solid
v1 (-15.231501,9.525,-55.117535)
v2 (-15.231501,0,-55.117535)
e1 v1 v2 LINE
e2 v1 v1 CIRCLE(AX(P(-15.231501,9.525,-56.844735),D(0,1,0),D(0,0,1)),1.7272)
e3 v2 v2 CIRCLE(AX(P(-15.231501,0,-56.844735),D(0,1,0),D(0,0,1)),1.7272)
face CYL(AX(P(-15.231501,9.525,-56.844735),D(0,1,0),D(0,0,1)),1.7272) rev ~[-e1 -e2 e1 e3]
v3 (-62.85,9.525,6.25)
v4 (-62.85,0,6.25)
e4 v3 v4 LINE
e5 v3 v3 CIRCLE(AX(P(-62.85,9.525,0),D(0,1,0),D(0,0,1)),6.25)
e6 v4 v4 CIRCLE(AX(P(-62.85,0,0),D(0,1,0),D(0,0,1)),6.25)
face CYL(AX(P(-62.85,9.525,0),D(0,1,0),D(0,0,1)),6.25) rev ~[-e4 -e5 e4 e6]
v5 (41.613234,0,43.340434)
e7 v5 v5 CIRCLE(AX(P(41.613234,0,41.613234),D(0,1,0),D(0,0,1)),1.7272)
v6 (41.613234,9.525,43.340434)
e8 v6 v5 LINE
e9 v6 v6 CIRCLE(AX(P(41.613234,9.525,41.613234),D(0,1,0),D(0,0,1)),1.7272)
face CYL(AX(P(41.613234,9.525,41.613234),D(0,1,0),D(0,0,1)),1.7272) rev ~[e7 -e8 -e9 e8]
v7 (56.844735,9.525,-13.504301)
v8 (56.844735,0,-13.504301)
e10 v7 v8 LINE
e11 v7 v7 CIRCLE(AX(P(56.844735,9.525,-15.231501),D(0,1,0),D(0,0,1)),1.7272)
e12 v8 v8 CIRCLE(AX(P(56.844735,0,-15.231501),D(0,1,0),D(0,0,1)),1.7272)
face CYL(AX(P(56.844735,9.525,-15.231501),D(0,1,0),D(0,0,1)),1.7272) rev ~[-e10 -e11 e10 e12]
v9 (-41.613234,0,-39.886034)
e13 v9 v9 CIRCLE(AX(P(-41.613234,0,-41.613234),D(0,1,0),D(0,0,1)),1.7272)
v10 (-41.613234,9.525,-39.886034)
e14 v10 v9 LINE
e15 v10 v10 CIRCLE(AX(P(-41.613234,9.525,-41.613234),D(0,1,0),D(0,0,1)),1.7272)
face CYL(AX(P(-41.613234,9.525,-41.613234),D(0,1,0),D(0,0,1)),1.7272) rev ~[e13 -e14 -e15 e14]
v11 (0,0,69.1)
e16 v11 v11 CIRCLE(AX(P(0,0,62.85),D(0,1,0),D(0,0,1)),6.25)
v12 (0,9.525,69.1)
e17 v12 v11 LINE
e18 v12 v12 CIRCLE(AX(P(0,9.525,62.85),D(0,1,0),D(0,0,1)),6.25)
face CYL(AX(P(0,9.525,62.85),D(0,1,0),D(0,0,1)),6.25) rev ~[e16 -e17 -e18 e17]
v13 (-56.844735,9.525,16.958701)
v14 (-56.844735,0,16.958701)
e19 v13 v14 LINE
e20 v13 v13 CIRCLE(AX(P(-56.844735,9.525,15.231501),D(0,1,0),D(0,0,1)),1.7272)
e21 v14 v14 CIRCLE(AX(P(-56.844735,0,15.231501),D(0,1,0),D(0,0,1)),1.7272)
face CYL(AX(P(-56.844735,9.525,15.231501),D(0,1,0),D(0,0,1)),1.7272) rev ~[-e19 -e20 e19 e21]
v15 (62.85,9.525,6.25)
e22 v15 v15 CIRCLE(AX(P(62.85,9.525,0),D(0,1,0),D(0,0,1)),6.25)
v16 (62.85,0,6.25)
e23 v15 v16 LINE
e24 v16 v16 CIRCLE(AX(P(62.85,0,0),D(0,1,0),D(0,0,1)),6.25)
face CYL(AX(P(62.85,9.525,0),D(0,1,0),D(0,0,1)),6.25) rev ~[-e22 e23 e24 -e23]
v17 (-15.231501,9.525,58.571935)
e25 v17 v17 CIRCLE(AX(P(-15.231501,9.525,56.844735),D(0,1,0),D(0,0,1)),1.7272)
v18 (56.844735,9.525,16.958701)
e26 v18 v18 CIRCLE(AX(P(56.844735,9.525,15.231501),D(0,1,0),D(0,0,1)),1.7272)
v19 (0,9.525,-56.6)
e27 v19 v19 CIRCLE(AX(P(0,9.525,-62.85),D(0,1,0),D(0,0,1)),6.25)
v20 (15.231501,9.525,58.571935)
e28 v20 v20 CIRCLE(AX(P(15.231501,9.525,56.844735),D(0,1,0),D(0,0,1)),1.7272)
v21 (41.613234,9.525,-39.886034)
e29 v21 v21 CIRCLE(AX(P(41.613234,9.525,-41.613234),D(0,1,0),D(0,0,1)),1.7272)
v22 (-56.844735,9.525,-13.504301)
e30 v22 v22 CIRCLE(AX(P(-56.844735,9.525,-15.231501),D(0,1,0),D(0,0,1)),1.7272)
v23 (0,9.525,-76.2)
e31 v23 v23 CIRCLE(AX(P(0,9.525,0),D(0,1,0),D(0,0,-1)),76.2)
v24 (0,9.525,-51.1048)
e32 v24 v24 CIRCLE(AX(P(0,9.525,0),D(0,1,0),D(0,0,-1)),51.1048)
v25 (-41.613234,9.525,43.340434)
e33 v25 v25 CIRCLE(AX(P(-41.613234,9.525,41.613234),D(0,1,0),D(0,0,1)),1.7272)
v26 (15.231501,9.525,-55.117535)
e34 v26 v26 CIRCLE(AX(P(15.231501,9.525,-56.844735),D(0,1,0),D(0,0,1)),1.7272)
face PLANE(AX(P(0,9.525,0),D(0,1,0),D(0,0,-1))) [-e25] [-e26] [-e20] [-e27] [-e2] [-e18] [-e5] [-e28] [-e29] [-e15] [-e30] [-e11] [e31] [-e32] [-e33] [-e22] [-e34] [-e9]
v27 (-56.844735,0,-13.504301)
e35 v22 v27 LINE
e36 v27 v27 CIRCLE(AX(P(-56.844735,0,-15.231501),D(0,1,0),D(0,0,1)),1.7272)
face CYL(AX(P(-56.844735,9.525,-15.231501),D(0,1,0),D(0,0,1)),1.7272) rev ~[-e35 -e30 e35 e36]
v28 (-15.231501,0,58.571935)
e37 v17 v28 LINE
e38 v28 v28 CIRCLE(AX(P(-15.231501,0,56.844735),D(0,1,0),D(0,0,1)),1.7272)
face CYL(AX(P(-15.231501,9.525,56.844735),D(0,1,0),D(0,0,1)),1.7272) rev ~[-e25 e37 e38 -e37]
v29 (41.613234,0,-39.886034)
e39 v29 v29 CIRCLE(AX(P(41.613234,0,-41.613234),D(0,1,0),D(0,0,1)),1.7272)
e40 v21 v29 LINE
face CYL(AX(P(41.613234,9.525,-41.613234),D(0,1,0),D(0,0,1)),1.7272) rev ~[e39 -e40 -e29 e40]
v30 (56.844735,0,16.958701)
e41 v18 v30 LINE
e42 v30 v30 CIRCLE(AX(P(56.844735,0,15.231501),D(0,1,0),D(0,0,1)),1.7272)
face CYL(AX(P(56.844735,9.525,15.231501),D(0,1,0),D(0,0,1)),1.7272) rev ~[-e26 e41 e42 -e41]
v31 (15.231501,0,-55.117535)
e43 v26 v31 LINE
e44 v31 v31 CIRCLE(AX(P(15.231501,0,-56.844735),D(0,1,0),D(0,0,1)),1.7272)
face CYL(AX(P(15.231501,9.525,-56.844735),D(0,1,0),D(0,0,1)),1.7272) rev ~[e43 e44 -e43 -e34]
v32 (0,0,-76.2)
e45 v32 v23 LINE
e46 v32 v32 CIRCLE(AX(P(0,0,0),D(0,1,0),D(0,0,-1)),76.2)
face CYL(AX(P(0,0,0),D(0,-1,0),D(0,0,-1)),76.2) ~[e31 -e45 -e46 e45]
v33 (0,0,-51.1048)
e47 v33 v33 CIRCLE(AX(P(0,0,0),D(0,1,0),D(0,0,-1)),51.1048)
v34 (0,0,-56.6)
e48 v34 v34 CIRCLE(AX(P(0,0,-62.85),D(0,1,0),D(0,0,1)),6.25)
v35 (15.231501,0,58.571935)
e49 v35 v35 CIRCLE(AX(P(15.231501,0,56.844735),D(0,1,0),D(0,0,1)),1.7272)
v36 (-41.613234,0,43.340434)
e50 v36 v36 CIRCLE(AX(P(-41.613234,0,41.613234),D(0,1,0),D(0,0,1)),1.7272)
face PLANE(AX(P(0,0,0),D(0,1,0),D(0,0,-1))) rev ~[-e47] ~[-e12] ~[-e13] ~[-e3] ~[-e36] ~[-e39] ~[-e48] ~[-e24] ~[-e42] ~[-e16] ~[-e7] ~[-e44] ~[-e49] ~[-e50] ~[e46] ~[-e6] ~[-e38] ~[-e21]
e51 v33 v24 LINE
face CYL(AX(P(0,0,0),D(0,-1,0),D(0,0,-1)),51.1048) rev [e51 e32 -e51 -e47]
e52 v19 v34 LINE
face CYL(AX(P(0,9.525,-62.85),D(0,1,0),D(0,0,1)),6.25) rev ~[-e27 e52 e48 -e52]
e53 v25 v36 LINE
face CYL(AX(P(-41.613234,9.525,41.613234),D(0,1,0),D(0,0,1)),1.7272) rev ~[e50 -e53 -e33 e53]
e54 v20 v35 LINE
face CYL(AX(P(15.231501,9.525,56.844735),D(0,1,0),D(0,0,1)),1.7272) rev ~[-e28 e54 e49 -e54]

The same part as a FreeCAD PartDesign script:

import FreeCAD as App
import Part
import Sketcher
Q = App.Units.Quantity

doc = App.newDocument("Part")
params = doc.addObject("Spreadsheet::Sheet", "Params")
for row, (alias, value) in enumerate([
    ("sketch1_diameter", "6 in"),
    ("sketch1_diameter2", "4.024 in"),
    ("pad1_length", "0.375 in"),
    ("sketch2_diameter", "0.136 in"),
], start=1):
    params.set(f"A{row}", alias)
    params.set(f"B{row}", "=" + value)
    params.setAlias(f"B{row}", alias)

body = doc.addObject("PartDesign::Body", "Body")

# Sketch on XZ plane
sketch1 = body.newObject("Sketcher::SketchObject", "Sketch")
sketch1.AttachmentSupport = (doc.getObject("XZ_Plane"), [""])
sketch1.MapMode = "FlatFace"
sketch1.addGeometry(Part.Circle(App.Vector(0, 0, 0), App.Vector(0, 0, 1), 76.2), False)
sketch1.addGeometry(Part.Circle(App.Vector(0, 0, 0), App.Vector(0, 0, 1), 51.1048), False)
sketch1.addConstraint(Sketcher.Constraint("Coincident", 0, 3, -1, 1))
sketch1.addConstraint(Sketcher.Constraint("Coincident", 1, 3, -1, 1))
sketch1.addConstraint(Sketcher.Constraint("Diameter", 0, Q("6 in")))
sketch1.addConstraint(Sketcher.Constraint("Diameter", 1, Q("4.024 in")))
sketch1.setExpression("Constraints[2]", "Params.sketch1_diameter")
sketch1.setExpression("Constraints[3]", "Params.sketch1_diameter2")
pad1 = body.newObject("PartDesign::Pad", "Pad")
pad1.Profile = sketch1
pad1.setExpression("Length", "Params.pad1_length")
pad1.Reversed = True

# Sketch on XZ plane
sketch2 = body.newObject("Sketcher::SketchObject", "Sketch001")
sketch2.AttachmentSupport = (doc.getObject("XZ_Plane"), [""])
sketch2.MapMode = "FlatFace"
sketch2.AttachmentOffset = App.Placement(App.Vector(0, 0, -0.375 * 25.4), App.Rotation())
sketch2.addGeometry(Part.Circle(App.Vector(-15.231501, -56.844735, 0), App.Vector(0, 0, 1), 1.7272), False)
sketch2.addGeometry(Part.Circle(App.Vector(15.231501, -56.844735, 0), App.Vector(0, 0, 1), 1.7272), False)
sketch2.addGeometry(Part.Circle(App.Vector(41.613234, -41.613234, 0), App.Vector(0, 0, 1), 1.7272), False)
sketch2.addGeometry(Part.Circle(App.Vector(56.844735, -15.231501, 0), App.Vector(0, 0, 1), 1.7272), False)
sketch2.addGeometry(Part.Circle(App.Vector(56.844735, 15.231501, 0), App.Vector(0, 0, 1), 1.7272), False)
sketch2.addGeometry(Part.Circle(App.Vector(41.613234, 41.613234, 0), App.Vector(0, 0, 1), 1.7272), False)
sketch2.addGeometry(Part.Circle(App.Vector(15.231501, 56.844735, 0), App.Vector(0, 0, 1), 1.7272), False)
sketch2.addGeometry(Part.Circle(App.Vector(-15.231501, 56.844735, 0), App.Vector(0, 0, 1), 1.7272), False)
sketch2.addGeometry(Part.Circle(App.Vector(-41.613234, 41.613234, 0), App.Vector(0, 0, 1), 1.7272), False)
sketch2.addGeometry(Part.Circle(App.Vector(-56.844735, 15.231501, 0), App.Vector(0, 0, 1), 1.7272), False)
sketch2.addGeometry(Part.Circle(App.Vector(-56.844735, -15.231501, 0), App.Vector(0, 0, 1), 1.7272), False)
sketch2.addGeometry(Part.Circle(App.Vector(-41.613234, -41.613234, 0), App.Vector(0, 0, 1), 1.7272), False)
sketch2.addConstraint(Sketcher.Constraint("Equal", 0, 1))
sketch2.addConstraint(Sketcher.Constraint("Equal", 1, 2))
sketch2.addConstraint(Sketcher.Constraint("Equal", 2, 3))
sketch2.addConstraint(Sketcher.Constraint("Equal", 3, 4))
sketch2.addConstraint(Sketcher.Constraint("Equal", 4, 5))
sketch2.addConstraint(Sketcher.Constraint("Equal", 5, 6))
sketch2.addConstraint(Sketcher.Constraint("Equal", 6, 7))
sketch2.addConstraint(Sketcher.Constraint("Equal", 7, 8))
sketch2.addConstraint(Sketcher.Constraint("Equal", 8, 9))
sketch2.addConstraint(Sketcher.Constraint("Equal", 9, 10))
sketch2.addConstraint(Sketcher.Constraint("Equal", 10, 11))
sketch2.addConstraint(Sketcher.Constraint("Symmetric", 0, 3, 6, 3, -1, 1))
sketch2.addConstraint(Sketcher.Constraint("Symmetric", 1, 3, 7, 3, -1, 1))
sketch2.addConstraint(Sketcher.Constraint("Symmetric", 2, 3, 8, 3, -1, 1))
sketch2.addConstraint(Sketcher.Constraint("Symmetric", 3, 3, 9, 3, -1, 1))
sketch2.addConstraint(Sketcher.Constraint("Symmetric", 4, 3, 10, 3, -1, 1))
sketch2.addConstraint(Sketcher.Constraint("Symmetric", 5, 3, 11, 3, -1, 1))
sketch2.addConstraint(Sketcher.Constraint("Symmetric", 0, 3, 1, 3, -2))
sketch2.addConstraint(Sketcher.Constraint("Symmetric", 5, 3, 8, 3, -2))
sketch2.addConstraint(Sketcher.Constraint("Symmetric", 4, 3, 9, 3, -2))
sketch2.addConstraint(Sketcher.Constraint("Diameter", 0, Q("0.136 in")))
sketch2.addConstraint(Sketcher.Constraint("DistanceX", 0, 3, -1, 1, Q("15.231501 mm")))
sketch2.addConstraint(Sketcher.Constraint("DistanceY", 3, 3, -1, 1, Q("15.231501 mm")))
sketch2.addConstraint(Sketcher.Constraint("DistanceY", 1, 3, 2, 3, Q("15.231501 mm")))
sketch2.addConstraint(Sketcher.Constraint("DistanceX", 2, 3, 3, 3, Q("15.231501 mm")))
sketch2.addConstraint(Sketcher.Constraint("DistanceY", 2, 3, 5, 3, Q("83.226468 mm")))
sketch2.addConstraint(Sketcher.Constraint("DistanceX", 8, 3, 5, 3, Q("83.226468 mm")))
sketch2.setExpression("Constraints[20]", "Params.sketch2_diameter")
pocket1 = body.newObject("PartDesign::Pocket", "Pocket")
pocket1.Profile = sketch2
pocket1.Type = "ThroughAll"
pocket1.Reversed = True

# Sketch on XZ plane
sketch3 = body.newObject("Sketcher::SketchObject", "Sketch002")
sketch3.AttachmentSupport = (doc.getObject("XZ_Plane"), [""])
sketch3.MapMode = "FlatFace"
sketch3.AttachmentOffset = App.Placement(App.Vector(0, 0, -0.375 * 25.4), App.Rotation())
sketch3.addGeometry(Part.Circle(App.Vector(-62.85, 0, 0), App.Vector(0, 0, 1), 6.25), False)
sketch3.addGeometry(Part.Circle(App.Vector(0, -62.85, 0), App.Vector(0, 0, 1), 6.25), False)
sketch3.addGeometry(Part.Circle(App.Vector(62.85, 0, 0), App.Vector(0, 0, 1), 6.25), False)
sketch3.addGeometry(Part.Circle(App.Vector(0, 62.85, 0), App.Vector(0, 0, 1), 6.25), False)
sketch3.addConstraint(Sketcher.Constraint("Equal", 0, 1))
sketch3.addConstraint(Sketcher.Constraint("Equal", 1, 2))
sketch3.addConstraint(Sketcher.Constraint("Equal", 2, 3))
sketch3.addConstraint(Sketcher.Constraint("Symmetric", 0, 3, 2, 3, -1, 1))
sketch3.addConstraint(Sketcher.Constraint("Symmetric", 1, 3, 3, 3, -1, 1))
sketch3.addConstraint(Sketcher.Constraint("PointOnObject", 0, 3, -1))
sketch3.addConstraint(Sketcher.Constraint("PointOnObject", 1, 3, -2))
sketch3.addConstraint(Sketcher.Constraint("Diameter", 0, Q("12.5 mm")))
sketch3.addConstraint(Sketcher.Constraint("DistanceX", 0, 3, -1, 1, Q("62.85 mm")))
sketch3.addConstraint(Sketcher.Constraint("DistanceY", 1, 3, -1, 1, Q("62.85 mm")))
pocket2 = body.newObject("PartDesign::Pocket", "Pocket001")
pocket2.Profile = sketch3
pocket2.Type = "ThroughAll"
pocket2.Reversed = True

doc.recompute()
